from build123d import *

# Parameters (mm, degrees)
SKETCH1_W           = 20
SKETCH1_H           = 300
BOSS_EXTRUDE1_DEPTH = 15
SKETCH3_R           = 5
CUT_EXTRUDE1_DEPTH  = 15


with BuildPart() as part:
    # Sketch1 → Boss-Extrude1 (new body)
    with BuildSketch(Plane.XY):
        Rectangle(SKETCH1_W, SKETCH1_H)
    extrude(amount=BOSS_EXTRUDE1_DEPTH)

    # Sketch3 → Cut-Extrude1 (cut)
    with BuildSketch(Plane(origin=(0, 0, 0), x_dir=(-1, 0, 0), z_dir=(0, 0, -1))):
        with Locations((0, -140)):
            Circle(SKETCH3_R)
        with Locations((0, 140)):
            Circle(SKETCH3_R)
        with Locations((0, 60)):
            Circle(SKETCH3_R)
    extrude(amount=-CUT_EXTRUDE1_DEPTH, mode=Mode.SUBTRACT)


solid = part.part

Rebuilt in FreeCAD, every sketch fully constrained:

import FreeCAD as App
import Part
import Sketcher
Q = App.Units.Quantity


def add_polygon(sketch, points):
    """Adds a closed chain of lines whose ends are joined by coincident constraints."""
    first, n = sketch.GeometryCount, len(points)
    for a, b in zip(points, points[1:] + points[:1]):
        sketch.addGeometry(Part.LineSegment(App.Vector(*a, 0), App.Vector(*b, 0)), False)
    for i in range(n):
        sketch.addConstraint(Sketcher.Constraint("Coincident", first + i, 2, first + (i + 1) % n, 1))

doc = App.newDocument("Part")
params = doc.addObject("Spreadsheet::Sheet", "Params")
for row, (alias, value) in enumerate([
    ("sketch1_width", "20 mm"),
    ("sketch1_height", "300 mm"),
    ("pad1_length", "15 mm"),
    ("sketch2_diameter", "10 mm"),
    ("pocket1_length", "15 mm"),
], start=1):
    params.set(f"A{row}", alias)
    params.set(f"B{row}", "=" + value)
    params.setAlias(f"B{row}", alias)

body = doc.addObject("PartDesign::Body", "Body")

# Sketch on XY plane
sketch1 = body.newObject("Sketcher::SketchObject", "Sketch")
sketch1.AttachmentSupport = (doc.getObject("XY_Plane"), [""])
sketch1.MapMode = "FlatFace"
add_polygon(sketch1, [(-10, 150), (-10, -150), (10, -150), (10, 150)])  # lines 0-3
sketch1.addConstraint(Sketcher.Constraint("Vertical", 0))
sketch1.addConstraint(Sketcher.Constraint("Horizontal", 1))
sketch1.addConstraint(Sketcher.Constraint("Vertical", 2))
sketch1.addConstraint(Sketcher.Constraint("Horizontal", 3))
sketch1.addConstraint(Sketcher.Constraint("Symmetric", 0, 2, 2, 2, -1, 1))
sketch1.addConstraint(Sketcher.Constraint("DistanceX", 1, 1, 1, 2, Q("20 mm")))
sketch1.addConstraint(Sketcher.Constraint("DistanceY", 0, 2, 0, 1, Q("300 mm")))
sketch1.setExpression("Constraints[9]", "Params.sketch1_width")
sketch1.setExpression("Constraints[10]", "Params.sketch1_height")
pad1 = body.newObject("PartDesign::Pad", "Pad")
pad1.Profile = sketch1
pad1.setExpression("Length", "Params.pad1_length")

# Sketch on XY plane
sketch2 = body.newObject("Sketcher::SketchObject", "Sketch001")
sketch2.AttachmentSupport = (doc.getObject("XY_Plane"), [""])
sketch2.MapMode = "FlatFace"
sketch2.addGeometry(Part.Circle(App.Vector(0, -140, 0), App.Vector(0, 0, 1), 5), False)
sketch2.addGeometry(Part.Circle(App.Vector(0, 140, 0), App.Vector(0, 0, 1), 5), False)
sketch2.addGeometry(Part.Circle(App.Vector(0, 60, 0), App.Vector(0, 0, 1), 5), False)
sketch2.addConstraint(Sketcher.Constraint("Equal", 0, 1))
sketch2.addConstraint(Sketcher.Constraint("Equal", 1, 2))
sketch2.addConstraint(Sketcher.Constraint("Symmetric", 0, 3, 1, 3, -1, 1))
sketch2.addConstraint(Sketcher.Constraint("PointOnObject", 0, 3, -2))
sketch2.addConstraint(Sketcher.Constraint("PointOnObject", 2, 3, -2))
sketch2.addConstraint(Sketcher.Constraint("Diameter", 0, Q("10 mm")))
sketch2.addConstraint(Sketcher.Constraint("DistanceY", 0, 3, -1, 1, Q("140 mm")))
sketch2.addConstraint(Sketcher.Constraint("DistanceY", -1, 1, 2, 3, Q("60 mm")))
sketch2.setExpression("Constraints[5]", "Params.sketch2_diameter")
pocket1 = body.newObject("PartDesign::Pocket", "Pocket")
pocket1.Profile = sketch2
pocket1.setExpression("Length", "Params.pocket1_length")
pocket1.Reversed = True

doc.recompute()
